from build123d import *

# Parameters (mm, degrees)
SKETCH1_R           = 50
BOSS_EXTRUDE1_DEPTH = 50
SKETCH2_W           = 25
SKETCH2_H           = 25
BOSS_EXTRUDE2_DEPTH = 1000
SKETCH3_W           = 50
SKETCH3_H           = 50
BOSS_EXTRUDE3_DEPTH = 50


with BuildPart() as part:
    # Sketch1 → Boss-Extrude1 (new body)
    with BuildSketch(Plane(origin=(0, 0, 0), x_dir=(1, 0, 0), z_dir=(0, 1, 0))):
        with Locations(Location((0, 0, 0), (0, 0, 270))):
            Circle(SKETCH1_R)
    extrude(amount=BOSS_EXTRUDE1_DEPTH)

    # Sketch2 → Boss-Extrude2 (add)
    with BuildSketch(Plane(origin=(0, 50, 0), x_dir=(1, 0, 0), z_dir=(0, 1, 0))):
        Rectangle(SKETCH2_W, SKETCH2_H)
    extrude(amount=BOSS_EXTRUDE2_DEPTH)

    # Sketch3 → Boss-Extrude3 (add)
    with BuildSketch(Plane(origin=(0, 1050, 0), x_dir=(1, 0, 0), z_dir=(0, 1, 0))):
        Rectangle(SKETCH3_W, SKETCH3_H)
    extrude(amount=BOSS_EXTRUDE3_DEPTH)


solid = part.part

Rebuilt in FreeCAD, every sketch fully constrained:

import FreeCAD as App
import Part
import Sketcher
Q = App.Units.Quantity

doc = App.newDocument("Part")
body = doc.addObject("PartDesign::Body", "Body")

sketch1 = body.newObject("Sketcher::SketchObject", "Sketch")
sketch1.AttachmentSupport = (doc.getObject("XZ_Plane"), [""])
sketch1.MapMode = "FlatFace"
sketch1.addGeometry(Part.Circle(App.Vector(0, 0, 0), App.Vector(0, 0, 1), 50), False)
sketch1.addConstraint([
    Sketcher.Constraint("Coincident", 0, 3, -1, 1),
    Sketcher.Constraint("Diameter", 0, Q("100 mm")),
])
pad1 = body.newObject("PartDesign::Pad", "Pad")
pad1.Profile = sketch1
pad1.Length = 50
pad1.Reversed = True

sketch2 = body.newObject("Sketcher::SketchObject", "Sketch001")
sketch2.AttachmentSupport = (doc.getObject("XZ_Plane"), [""])
sketch2.MapMode = "FlatFace"
sketch2.AttachmentOffset = App.Placement(App.Vector(0, 0, -50), App.Rotation())
sketch2.addGeometry([
    Part.LineSegment(App.Vector(-12, -12, 0), App.Vector(-12, 12, 0)),
    Part.LineSegment(App.Vector(-12, 12, 0), App.Vector(12, 12, 0)),
    Part.LineSegment(App.Vector(12, 12, 0), App.Vector(12, -12, 0)),
    Part.LineSegment(App.Vector(12, -12, 0), App.Vector(-12, -12, 0)),
], False)
sketch2.addConstraint([
    Sketcher.Constraint("Coincident", 0, 2, 1, 1),
    Sketcher.Constraint("Coincident", 1, 2, 2, 1),
    Sketcher.Constraint("Coincident", 2, 2, 3, 1),
    Sketcher.Constraint("Coincident", 3, 2, 0, 1),
    Sketcher.Constraint("Vertical", 0),
    Sketcher.Constraint("Horizontal", 1),
    Sketcher.Constraint("Vertical", 2),
    Sketcher.Constraint("Horizontal", 3),
    Sketcher.Constraint("Symmetric", 0, 2, 2, 2, -1, 1),
    Sketcher.Constraint("Equal", 3, 0),
    Sketcher.Constraint("DistanceX", 1, 1, 1, 2, Q("25 mm")),
])
pad2 = body.newObject("PartDesign::Pad", "Pad001")
pad2.Profile = sketch2
pad2.Length = 1000
pad2.Reversed = True

sketch3 = body.newObject("Sketcher::SketchObject", "Sketch002")
sketch3.AttachmentSupport = (doc.getObject("XZ_Plane"), [""])
sketch3.MapMode = "FlatFace"
sketch3.AttachmentOffset = App.Placement(App.Vector(0, 0, -1050), App.Rotation())
sketch3.addGeometry([
    Part.LineSegment(App.Vector(-25, -25, 0), App.Vector(-25, 25, 0)),
    Part.LineSegment(App.Vector(-25, 25, 0), App.Vector(25, 25, 0)),
    Part.LineSegment(App.Vector(25, 25, 0), App.Vector(25, -25, 0)),
    Part.LineSegment(App.Vector(25, -25, 0), App.Vector(-25, -25, 0)),
], False)
sketch3.addConstraint([
    Sketcher.Constraint("Coincident", 0, 2, 1, 1),
    Sketcher.Constraint("Coincident", 1, 2, 2, 1),
    Sketcher.Constraint("Coincident", 2, 2, 3, 1),
    Sketcher.Constraint("Coincident", 3, 2, 0, 1),
    Sketcher.Constraint("Vertical", 0),
    Sketcher.Constraint("Horizontal", 1),
    Sketcher.Constraint("Vertical", 2),
    Sketcher.Constraint("Horizontal", 3),
    Sketcher.Constraint("Symmetric", 0, 2, 2, 2, -1, 1),
    Sketcher.Constraint("Equal", 3, 0),
    Sketcher.Constraint("DistanceX", 1, 1, 1, 2, Q("50 mm")),
])
pad3 = body.newObject("PartDesign::Pad", "Pad002")
pad3.Profile = sketch3
pad3.Length = 50
pad3.Reversed = True

doc.recompute()
